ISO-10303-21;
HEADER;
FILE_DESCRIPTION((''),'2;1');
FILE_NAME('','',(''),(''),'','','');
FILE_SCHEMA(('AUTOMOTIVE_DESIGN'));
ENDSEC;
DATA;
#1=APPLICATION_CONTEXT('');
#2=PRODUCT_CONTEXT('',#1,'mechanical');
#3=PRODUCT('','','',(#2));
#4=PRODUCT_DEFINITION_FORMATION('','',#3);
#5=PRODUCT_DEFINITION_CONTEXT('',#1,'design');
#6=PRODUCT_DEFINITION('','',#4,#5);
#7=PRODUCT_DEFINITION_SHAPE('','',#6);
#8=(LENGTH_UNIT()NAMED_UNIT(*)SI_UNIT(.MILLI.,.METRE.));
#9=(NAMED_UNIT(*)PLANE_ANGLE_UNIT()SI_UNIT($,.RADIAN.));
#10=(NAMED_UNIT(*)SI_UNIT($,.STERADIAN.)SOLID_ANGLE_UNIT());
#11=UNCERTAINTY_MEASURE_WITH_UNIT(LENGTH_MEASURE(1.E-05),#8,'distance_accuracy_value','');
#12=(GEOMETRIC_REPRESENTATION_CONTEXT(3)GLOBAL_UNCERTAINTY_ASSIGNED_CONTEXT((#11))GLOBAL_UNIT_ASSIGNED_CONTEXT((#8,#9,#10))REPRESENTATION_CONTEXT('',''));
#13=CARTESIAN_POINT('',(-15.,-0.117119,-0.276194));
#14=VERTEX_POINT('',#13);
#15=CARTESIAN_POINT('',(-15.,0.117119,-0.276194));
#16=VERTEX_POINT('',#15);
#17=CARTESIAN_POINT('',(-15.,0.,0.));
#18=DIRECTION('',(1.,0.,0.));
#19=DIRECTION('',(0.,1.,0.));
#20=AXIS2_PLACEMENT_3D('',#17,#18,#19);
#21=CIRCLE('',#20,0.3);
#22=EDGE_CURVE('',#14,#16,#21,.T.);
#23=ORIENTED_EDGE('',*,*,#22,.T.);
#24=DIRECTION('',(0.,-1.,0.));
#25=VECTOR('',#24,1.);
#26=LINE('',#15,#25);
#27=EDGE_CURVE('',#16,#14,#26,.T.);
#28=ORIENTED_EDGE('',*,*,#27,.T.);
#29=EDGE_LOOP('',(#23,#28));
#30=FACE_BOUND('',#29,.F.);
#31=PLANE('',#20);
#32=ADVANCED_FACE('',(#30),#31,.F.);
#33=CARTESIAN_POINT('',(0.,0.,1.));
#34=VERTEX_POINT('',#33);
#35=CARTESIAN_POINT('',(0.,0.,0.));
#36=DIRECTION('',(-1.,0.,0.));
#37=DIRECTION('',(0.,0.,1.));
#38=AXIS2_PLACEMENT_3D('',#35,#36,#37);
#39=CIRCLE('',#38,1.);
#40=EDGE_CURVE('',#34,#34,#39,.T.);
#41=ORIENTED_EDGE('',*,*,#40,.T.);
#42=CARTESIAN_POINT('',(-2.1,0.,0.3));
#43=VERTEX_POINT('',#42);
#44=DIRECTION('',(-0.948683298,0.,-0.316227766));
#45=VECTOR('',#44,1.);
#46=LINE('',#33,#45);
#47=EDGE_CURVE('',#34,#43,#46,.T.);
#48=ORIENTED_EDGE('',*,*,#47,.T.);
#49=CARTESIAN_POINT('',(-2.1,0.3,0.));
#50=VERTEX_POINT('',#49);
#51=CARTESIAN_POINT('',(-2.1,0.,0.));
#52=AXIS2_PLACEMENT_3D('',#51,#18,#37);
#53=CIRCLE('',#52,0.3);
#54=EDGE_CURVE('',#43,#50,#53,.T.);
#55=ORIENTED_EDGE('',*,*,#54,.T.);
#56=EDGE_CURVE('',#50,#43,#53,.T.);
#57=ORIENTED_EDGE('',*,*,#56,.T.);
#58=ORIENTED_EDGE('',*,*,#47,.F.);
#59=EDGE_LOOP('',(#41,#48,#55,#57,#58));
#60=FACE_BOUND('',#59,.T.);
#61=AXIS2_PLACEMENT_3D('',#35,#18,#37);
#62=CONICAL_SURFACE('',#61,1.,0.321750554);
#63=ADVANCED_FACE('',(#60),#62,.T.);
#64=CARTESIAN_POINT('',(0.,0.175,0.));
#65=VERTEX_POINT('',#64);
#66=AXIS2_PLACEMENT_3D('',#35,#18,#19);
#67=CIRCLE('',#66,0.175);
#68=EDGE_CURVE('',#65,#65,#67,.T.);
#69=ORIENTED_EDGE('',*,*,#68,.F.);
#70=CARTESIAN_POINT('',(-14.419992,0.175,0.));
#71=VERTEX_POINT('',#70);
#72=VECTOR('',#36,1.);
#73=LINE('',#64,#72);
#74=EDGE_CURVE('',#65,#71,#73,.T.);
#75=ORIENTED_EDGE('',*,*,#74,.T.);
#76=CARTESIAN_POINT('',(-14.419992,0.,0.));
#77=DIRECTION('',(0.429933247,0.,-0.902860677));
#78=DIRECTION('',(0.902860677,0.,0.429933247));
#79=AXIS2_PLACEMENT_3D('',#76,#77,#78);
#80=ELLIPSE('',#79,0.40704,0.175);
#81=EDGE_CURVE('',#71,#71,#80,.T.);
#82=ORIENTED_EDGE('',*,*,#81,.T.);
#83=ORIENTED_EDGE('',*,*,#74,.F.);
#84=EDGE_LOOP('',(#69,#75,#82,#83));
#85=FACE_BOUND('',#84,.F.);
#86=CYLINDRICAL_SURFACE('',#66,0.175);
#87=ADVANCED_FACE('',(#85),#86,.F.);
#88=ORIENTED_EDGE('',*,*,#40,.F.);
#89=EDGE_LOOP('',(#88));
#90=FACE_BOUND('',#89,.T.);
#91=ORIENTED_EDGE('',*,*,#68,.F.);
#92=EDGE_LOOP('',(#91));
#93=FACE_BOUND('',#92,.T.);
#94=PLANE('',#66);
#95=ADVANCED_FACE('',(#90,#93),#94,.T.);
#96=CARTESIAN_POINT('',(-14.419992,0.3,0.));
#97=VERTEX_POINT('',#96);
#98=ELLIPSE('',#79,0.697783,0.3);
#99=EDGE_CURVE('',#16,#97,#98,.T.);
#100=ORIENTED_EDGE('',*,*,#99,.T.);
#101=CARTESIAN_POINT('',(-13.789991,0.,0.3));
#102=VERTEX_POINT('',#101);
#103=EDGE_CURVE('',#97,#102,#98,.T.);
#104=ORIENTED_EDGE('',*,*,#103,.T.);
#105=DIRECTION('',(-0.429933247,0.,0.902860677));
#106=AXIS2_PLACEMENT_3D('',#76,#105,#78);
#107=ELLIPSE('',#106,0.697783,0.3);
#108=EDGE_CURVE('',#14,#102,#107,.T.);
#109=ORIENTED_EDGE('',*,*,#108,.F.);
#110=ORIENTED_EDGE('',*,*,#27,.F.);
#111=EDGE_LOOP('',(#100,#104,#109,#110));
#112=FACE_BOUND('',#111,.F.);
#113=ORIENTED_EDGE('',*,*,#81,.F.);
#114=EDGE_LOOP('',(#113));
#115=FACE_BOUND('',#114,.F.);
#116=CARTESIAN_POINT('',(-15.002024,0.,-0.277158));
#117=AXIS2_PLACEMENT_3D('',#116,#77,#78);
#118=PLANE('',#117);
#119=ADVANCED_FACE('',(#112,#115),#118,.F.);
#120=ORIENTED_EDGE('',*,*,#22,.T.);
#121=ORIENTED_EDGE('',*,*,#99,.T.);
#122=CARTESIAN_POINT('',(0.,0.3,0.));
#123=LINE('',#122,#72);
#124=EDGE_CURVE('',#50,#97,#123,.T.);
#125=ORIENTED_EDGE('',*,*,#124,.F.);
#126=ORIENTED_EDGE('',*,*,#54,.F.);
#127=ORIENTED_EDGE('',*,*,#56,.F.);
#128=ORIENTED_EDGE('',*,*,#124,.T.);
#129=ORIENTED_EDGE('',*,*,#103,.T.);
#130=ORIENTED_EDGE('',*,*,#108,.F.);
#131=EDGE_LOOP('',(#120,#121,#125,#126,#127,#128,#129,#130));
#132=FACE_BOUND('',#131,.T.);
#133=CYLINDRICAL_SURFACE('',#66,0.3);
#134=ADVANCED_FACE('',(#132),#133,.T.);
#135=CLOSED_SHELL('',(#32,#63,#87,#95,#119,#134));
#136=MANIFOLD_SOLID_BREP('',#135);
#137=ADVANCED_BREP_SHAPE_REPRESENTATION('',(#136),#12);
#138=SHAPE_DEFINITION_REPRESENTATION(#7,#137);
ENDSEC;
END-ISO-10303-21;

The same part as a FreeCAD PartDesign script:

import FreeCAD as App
import Part
import Sketcher

V = App.Vector


def add_polygon(sketch, points):
    """Adds a closed chain of lines whose ends are joined by coincident constraints."""
    first, n = sketch.GeometryCount, len(points)
    for a, b in zip(points, points[1:] + points[:1]):
        sketch.addGeometry(Part.LineSegment(App.Vector(*a, 0), App.Vector(*b, 0)), False)
    for i in range(n):
        sketch.addConstraint(Sketcher.Constraint("Coincident", first + i, 2, first + (i + 1) % n, 1))

doc = App.newDocument("Part")
body = doc.addObject("PartDesign::Body", "Body")

sketch1 = body.newObject("Sketcher::SketchObject", "Sketch")
sketch1.AttachmentSupport = (doc.getObject("XZ_Plane"), [""])
sketch1.MapMode = "FlatFace"
add_polygon(sketch1, [(-3, 0), (0, 0), (0, 1)])
sketch1.addConstraint(Sketcher.Constraint("Horizontal", 0))
sketch1.addConstraint(Sketcher.Constraint("Vertical", 1))
sketch1.addConstraint(Sketcher.Constraint("Coincident", 0, 2, -1, 1))
sketch1.addConstraint(Sketcher.Constraint("DistanceX", 0, 1, 0, 2, 3.0))
sketch1.addConstraint(Sketcher.Constraint("DistanceY", 1, 1, 1, 2, 1.0))
revolution = body.newObject("PartDesign::Revolution", "Revolution")
revolution.Profile = sketch1
revolution.ReferenceAxis = (sketch1, ["H_Axis"])
revolution.Angle = 360

sketch2 = body.newObject("Sketcher::SketchObject", "Sketch001")
sketch2.AttachmentSupport = (doc.getObject("YZ_Plane"), [""])
sketch2.MapMode = "FlatFace"
sketch2.addGeometry(Part.Circle(V(0, 0, 0), V(0, 0, 1), 0.3), False)
sketch2.addConstraint(Sketcher.Constraint("Coincident", 0, 3, -1, 1))
sketch2.addConstraint(Sketcher.Constraint("Diameter", 0, 0.6))
pad1 = body.newObject("PartDesign::Pad", "Pad")
pad1.Profile = sketch2
pad1.Length = 15
pad1.Reversed = True

sketch3 = body.newObject("Sketcher::SketchObject", "Sketch002")
sketch3.AttachmentSupport = (doc.getObject("XZ_Plane"), [""])
sketch3.MapMode = "FlatFace"
add_polygon(sketch3, [(-15.2, 0.3), (-15, -0.3), (-13.7, 0.3)])
sketch3.addConstraint(Sketcher.Constraint("Horizontal", 2))
sketch3.addConstraint(Sketcher.Constraint("Distance", 1, 1.398701))
sketch3.addConstraint(Sketcher.Constraint("DistanceX", 2, 2, 2, 1, 1.483327))
sketch3.addConstraint(Sketcher.Constraint("DistanceX", 1, 2, -1, 1, 13.739192))
sketch3.addConstraint(Sketcher.Constraint("DistanceY", -1, 1, 1, 2, 0.32419))
sketch3.addConstraint(Sketcher.Constraint("Distance", 0, 0.640498))
pocket1 = body.newObject("PartDesign::Pocket", "Pocket")
pocket1.Profile = sketch3
pocket1.Length = 25

sketch4 = body.newObject("Sketcher::SketchObject", "Sketch003")
sketch4.AttachmentSupport = (doc.getObject("XZ_Plane"), [""])
sketch4.MapMode = "FlatFace"
add_polygon(sketch4, [(-15.2, 0.3), (-15, -0.3), (-13.7, 0.3)])
sketch4.addConstraint(Sketcher.Constraint("Horizontal", 2))
sketch4.addConstraint(Sketcher.Constraint("Distance", 1, 1.398701))
sketch4.addConstraint(Sketcher.Constraint("DistanceX", 2, 2, 2, 1, 1.483327))
sketch4.addConstraint(Sketcher.Constraint("DistanceX", 1, 2, -1, 1, 13.739192))
sketch4.addConstraint(Sketcher.Constraint("DistanceY", -1, 1, 1, 2, 0.32419))
sketch4.addConstraint(Sketcher.Constraint("Distance", 0, 0.640498))
pocket2 = body.newObject("PartDesign::Pocket", "Pocket001")
pocket2.Profile = sketch4
pocket2.Length = 25
pocket2.Reversed = True

sketch5 = body.newObject("Sketcher::SketchObject", "Sketch004")
sketch5.AttachmentSupport = (doc.getObject("YZ_Plane"), [""])
sketch5.MapMode = "FlatFace"
sketch5.addGeometry(Part.Circle(V(0, 0, 0), V(0, 0, 1), 0.17), False)
sketch5.addConstraint(Sketcher.Constraint("Coincident", 0, 3, -1, 1))
sketch5.addConstraint(Sketcher.Constraint("Diameter", 0, 0.35))
pocket3 = body.newObject("PartDesign::Pocket", "Pocket002")
pocket3.Profile = sketch5
pocket3.Length = 25

doc.recompute()
